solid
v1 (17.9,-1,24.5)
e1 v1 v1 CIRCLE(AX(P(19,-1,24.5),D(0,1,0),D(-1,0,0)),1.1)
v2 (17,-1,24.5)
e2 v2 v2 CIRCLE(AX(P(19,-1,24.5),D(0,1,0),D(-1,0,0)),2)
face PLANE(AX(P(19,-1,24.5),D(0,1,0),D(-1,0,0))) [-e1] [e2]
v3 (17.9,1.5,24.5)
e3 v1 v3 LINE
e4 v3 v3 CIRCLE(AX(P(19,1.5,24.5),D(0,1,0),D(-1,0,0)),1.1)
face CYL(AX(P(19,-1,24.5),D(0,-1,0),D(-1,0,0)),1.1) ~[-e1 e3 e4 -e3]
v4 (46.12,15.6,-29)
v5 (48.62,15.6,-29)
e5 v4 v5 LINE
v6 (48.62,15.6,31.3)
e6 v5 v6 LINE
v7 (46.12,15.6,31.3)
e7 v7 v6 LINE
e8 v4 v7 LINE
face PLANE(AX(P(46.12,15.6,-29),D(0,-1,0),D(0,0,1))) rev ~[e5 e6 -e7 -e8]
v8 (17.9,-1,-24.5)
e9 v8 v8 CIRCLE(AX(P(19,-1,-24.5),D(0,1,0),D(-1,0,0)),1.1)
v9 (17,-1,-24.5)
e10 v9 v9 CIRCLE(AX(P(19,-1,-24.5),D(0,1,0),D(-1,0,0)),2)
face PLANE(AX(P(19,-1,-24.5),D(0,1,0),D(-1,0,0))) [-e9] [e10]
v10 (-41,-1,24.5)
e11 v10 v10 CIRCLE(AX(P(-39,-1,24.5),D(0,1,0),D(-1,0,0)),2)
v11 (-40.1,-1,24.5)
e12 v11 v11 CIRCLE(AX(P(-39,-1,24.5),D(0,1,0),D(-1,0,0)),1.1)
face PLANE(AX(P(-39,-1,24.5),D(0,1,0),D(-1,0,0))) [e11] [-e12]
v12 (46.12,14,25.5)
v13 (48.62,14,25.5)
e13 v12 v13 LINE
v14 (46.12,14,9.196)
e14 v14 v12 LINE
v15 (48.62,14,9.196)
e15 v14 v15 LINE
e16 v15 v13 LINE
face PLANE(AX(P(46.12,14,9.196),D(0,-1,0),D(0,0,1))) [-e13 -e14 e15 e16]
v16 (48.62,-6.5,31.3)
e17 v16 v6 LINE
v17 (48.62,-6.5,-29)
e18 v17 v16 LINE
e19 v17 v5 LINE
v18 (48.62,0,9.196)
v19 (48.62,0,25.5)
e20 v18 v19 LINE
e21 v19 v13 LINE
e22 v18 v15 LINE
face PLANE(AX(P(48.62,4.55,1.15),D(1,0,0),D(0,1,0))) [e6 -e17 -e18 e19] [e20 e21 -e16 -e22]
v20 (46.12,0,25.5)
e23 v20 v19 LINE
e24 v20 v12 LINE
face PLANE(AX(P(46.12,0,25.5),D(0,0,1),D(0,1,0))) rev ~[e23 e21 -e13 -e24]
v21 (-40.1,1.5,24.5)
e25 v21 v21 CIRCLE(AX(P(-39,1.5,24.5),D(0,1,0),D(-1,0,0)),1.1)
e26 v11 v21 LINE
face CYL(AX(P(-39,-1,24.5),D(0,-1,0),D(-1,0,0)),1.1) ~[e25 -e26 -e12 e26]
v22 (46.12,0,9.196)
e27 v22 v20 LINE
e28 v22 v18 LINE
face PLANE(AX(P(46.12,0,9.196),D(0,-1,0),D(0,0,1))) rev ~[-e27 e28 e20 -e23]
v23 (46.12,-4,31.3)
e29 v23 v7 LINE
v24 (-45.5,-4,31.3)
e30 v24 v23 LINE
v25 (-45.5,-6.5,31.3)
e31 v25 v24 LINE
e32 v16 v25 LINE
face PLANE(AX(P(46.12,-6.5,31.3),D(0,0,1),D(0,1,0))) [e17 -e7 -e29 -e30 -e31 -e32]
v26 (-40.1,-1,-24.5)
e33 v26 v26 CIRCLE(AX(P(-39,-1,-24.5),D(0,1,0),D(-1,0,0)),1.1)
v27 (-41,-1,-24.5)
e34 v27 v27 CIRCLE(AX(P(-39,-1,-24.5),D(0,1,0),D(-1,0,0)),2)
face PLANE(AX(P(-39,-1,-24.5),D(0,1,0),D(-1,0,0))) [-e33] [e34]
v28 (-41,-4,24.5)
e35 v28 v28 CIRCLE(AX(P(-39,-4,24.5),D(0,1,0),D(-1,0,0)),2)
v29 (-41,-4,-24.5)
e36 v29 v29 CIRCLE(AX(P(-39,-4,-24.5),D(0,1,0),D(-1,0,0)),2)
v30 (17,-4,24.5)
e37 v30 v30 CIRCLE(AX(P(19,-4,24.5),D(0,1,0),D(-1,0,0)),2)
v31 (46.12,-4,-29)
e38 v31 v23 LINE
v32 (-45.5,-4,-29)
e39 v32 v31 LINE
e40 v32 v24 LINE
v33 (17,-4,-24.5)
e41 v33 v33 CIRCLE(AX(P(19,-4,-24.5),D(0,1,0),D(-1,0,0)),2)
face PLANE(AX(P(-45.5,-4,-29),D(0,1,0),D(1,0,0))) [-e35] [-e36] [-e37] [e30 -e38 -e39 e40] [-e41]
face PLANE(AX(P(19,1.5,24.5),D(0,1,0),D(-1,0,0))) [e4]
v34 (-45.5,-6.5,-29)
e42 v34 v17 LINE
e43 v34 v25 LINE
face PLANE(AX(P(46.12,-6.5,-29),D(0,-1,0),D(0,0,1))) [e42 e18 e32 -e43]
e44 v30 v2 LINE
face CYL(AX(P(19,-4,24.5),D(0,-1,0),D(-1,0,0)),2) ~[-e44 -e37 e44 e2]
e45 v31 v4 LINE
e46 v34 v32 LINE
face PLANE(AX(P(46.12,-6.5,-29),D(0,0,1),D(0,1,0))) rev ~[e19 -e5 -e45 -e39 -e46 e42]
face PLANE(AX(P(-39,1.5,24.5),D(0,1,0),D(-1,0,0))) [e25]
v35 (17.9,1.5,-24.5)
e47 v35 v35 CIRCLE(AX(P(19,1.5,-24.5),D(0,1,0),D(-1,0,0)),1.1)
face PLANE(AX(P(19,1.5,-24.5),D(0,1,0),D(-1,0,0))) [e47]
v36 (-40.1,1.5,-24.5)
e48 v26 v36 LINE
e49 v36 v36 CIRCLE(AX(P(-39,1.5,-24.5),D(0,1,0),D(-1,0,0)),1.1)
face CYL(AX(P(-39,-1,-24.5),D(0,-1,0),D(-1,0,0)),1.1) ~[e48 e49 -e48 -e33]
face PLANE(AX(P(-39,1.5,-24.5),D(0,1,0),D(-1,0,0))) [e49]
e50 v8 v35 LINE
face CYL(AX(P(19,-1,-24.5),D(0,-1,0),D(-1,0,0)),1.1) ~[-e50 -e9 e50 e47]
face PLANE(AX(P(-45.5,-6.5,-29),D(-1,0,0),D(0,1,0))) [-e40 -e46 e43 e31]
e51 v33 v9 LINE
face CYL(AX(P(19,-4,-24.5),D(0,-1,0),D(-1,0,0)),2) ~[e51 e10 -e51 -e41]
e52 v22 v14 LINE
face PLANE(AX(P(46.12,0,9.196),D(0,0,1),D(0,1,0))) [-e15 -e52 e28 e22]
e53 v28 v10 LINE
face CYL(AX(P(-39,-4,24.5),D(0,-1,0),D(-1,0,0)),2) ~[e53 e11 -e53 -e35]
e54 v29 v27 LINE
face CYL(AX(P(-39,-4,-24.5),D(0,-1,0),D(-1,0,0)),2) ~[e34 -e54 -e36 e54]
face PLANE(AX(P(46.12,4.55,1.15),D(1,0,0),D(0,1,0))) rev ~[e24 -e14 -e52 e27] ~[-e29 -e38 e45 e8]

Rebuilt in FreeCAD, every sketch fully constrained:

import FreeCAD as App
import Part
import Sketcher

doc = App.newDocument("Part")
body = doc.addObject("PartDesign::Body", "Body")

sketch1 = doc.addObject("Sketcher::SketchObject", "Sketch")
body.addObject(sketch1)
sketch1.AttachmentSupport = (doc.XY_Plane, [""])
sketch1.MapMode = "FlatFace"
sketch1.AttachmentOffset = App.Placement(App.Vector(0, 0, -29), App.Rotation())
sketch1.addGeometry([
    Part.LineSegment(App.Vector(-45.5, -4, 0), App.Vector(-45.5, -6.5, 0)),
    Part.LineSegment(App.Vector(-45.5, -6.5, 0), App.Vector(46.1, -6.5, 0)),
    Part.LineSegment(App.Vector(46.1, -6.5, 0), App.Vector(46.1, -4, 0)),
    Part.LineSegment(App.Vector(46.1, -4, 0), App.Vector(-45.5, -4, 0)),
], False)
sketch1.addConstraint([
    Sketcher.Constraint("Coincident", 0, 2, 1, 1),
    Sketcher.Constraint("Coincident", 1, 2, 2, 1),
    Sketcher.Constraint("Coincident", 2, 2, 3, 1),
    Sketcher.Constraint("Coincident", 3, 2, 0, 1),
    Sketcher.Constraint("Vertical", 0),
    Sketcher.Constraint("Horizontal", 1),
    Sketcher.Constraint("Vertical", 2),
    Sketcher.Constraint("Horizontal", 3),
    Sketcher.Constraint("DistanceY", 0, 2, 0, 1, 2.5),
    Sketcher.Constraint("DistanceY", 2, 2, -1, 1, 4.0),
    Sketcher.Constraint("DistanceX", 1, 1, 1, 2, 91.62),
    Sketcher.Constraint("DistanceX", 0, 2, -1, 1, 45.5),
])
pad1 = doc.addObject("PartDesign::Pad", "Pad")
body.addObject(pad1)
pad1.Profile = sketch1
pad1.Length = 60.3

sketch2 = doc.addObject("Sketcher::SketchObject", "Sketch001")
body.addObject(sketch2)
sketch2.AttachmentSupport = (doc.XZ_Plane, [""])
sketch2.MapMode = "FlatFace"
sketch2.AttachmentOffset = App.Placement(App.Vector(0, 0, 4), App.Rotation())
sketch2.addGeometry([
    Part.Circle(App.Vector(-39, -24.5, 0), App.Vector(0, 0, 1), 2),
    Part.Circle(App.Vector(19, -24.5, 0), App.Vector(0, 0, 1), 2),
    Part.Circle(App.Vector(19, 24.5, 0), App.Vector(0, 0, 1), 2),
    Part.Circle(App.Vector(-39, 24.5, 0), App.Vector(0, 0, 1), 2),
], False)
sketch2.addConstraint([
    Sketcher.Constraint("Equal", 0, 1),
    Sketcher.Constraint("Equal", 1, 2),
    Sketcher.Constraint("Equal", 2, 3),
    Sketcher.Constraint("Symmetric", 1, 3, 2, 3, -1),
    Sketcher.Constraint("Symmetric", 0, 3, 3, 3, -1),
    Sketcher.Constraint("Horizontal", 0, 3, 1, 3),
    Sketcher.Constraint("Diameter", 0, 4.0),
    Sketcher.Constraint("DistanceX", 0, 3, -1, 1, 39.0),
    Sketcher.Constraint("DistanceX", -1, 1, 1, 3, 19.0),
    Sketcher.Constraint("DistanceY", 1, 3, 2, 3, 49.0),
])
pad2 = doc.addObject("PartDesign::Pad", "Pad001")
body.addObject(pad2)
pad2.Profile = sketch2
pad2.Length = 3
pad2.Reversed = True

sketch3 = doc.addObject("Sketcher::SketchObject", "Sketch002")
body.addObject(sketch3)
sketch3.AttachmentSupport = (doc.YZ_Plane, [""])
sketch3.MapMode = "FlatFace"
sketch3.AttachmentOffset = App.Placement(App.Vector(0, 0, 46.12), App.Rotation())
sketch3.addGeometry([
    Part.LineSegment(App.Vector(-6, 31, 0), App.Vector(-6, -29, 0)),
    Part.LineSegment(App.Vector(-6, -29, 0), App.Vector(16, -29, 0)),
    Part.LineSegment(App.Vector(16, -29, 0), App.Vector(16, 31, 0)),
    Part.LineSegment(App.Vector(16, 31, 0), App.Vector(-6, 31, 0)),
    Part.LineSegment(App.Vector(14, 9, 0), App.Vector(0, 9, 0)),
    Part.LineSegment(App.Vector(0, 9, 0), App.Vector(0, 26, 0)),
    Part.LineSegment(App.Vector(0, 26, 0), App.Vector(14, 26, 0)),
    Part.LineSegment(App.Vector(14, 26, 0), App.Vector(14, 9, 0)),
], False)
sketch3.addConstraint([
    Sketcher.Constraint("Coincident", 0, 2, 1, 1),
    Sketcher.Constraint("Coincident", 1, 2, 2, 1),
    Sketcher.Constraint("Coincident", 2, 2, 3, 1),
    Sketcher.Constraint("Coincident", 3, 2, 0, 1),
    Sketcher.Constraint("Coincident", 4, 2, 5, 1),
    Sketcher.Constraint("Coincident", 5, 2, 6, 1),
    Sketcher.Constraint("Coincident", 6, 2, 7, 1),
    Sketcher.Constraint("Coincident", 7, 2, 4, 1),
    Sketcher.Constraint("Vertical", 0),
    Sketcher.Constraint("Horizontal", 1),
    Sketcher.Constraint("Vertical", 2),
    Sketcher.Constraint("Horizontal", 3),
    Sketcher.Constraint("Horizontal", 4),
    Sketcher.Constraint("Vertical", 5),
    Sketcher.Constraint("Horizontal", 6),
    Sketcher.Constraint("Vertical", 7),
    Sketcher.Constraint("PointOnObject", 4, 2, -2),
    Sketcher.Constraint("DistanceX", 4, 2, 4, 1, 14.0),
    Sketcher.Constraint("DistanceX", 1, 1, 1, 2, 22.1),
    Sketcher.Constraint("DistanceY", 0, 2, 0, 1, 60.3),
    Sketcher.Constraint("DistanceY", 0, 2, -1, 1, 29.0),
    Sketcher.Constraint("DistanceX", 0, 2, -1, 1, 6.5),
    Sketcher.Constraint("DistanceY", -1, 1, 5, 2, 25.5),
    Sketcher.Constraint("DistanceY", 5, 1, 5, 2, 16.304),
])
pad3 = doc.addObject("PartDesign::Pad", "Pad002")
body.addObject(pad3)
pad3.Profile = sketch3
pad3.Length = 2.5

sketch4 = doc.addObject("Sketcher::SketchObject", "Sketch003")
body.addObject(sketch4)
sketch4.AttachmentSupport = (doc.XZ_Plane, [""])
sketch4.MapMode = "FlatFace"
sketch4.AttachmentOffset = App.Placement(App.Vector(0, 0, 1), App.Rotation())
sketch4.addGeometry([
    Part.Circle(App.Vector(19, -24.5, 0), App.Vector(0, 0, 1), 1.1),
    Part.Circle(App.Vector(19, 24.5, 0), App.Vector(0, 0, 1), 1.1),
    Part.Circle(App.Vector(-39, 24.5, 0), App.Vector(0, 0, 1), 1.1),
    Part.Circle(App.Vector(-39, -24.5, 0), App.Vector(0, 0, 1), 1.1),
], False)
sketch4.addConstraint([
    Sketcher.Constraint("Equal", 0, 1),
    Sketcher.Constraint("Equal", 1, 2),
    Sketcher.Constraint("Equal", 2, 3),
    Sketcher.Constraint("Symmetric", 0, 3, 1, 3, -1),
    Sketcher.Constraint("Symmetric", 2, 3, 3, 3, -1),
    Sketcher.Constraint("Horizontal", 1, 3, 2, 3),
    Sketcher.Constraint("Diameter", 0, 2.2),
    Sketcher.Constraint("DistanceX", -1, 1, 0, 3, 19.0),
    Sketcher.Constraint("DistanceX", 2, 3, -1, 1, 39.0),
    Sketcher.Constraint("DistanceY", 0, 3, 1, 3, 49.0),
])
pad4 = doc.addObject("PartDesign::Pad", "Pad003")
body.addObject(pad4)
pad4.Profile = sketch4
pad4.Length = 2.5
pad4.Reversed = True

doc.recompute()
